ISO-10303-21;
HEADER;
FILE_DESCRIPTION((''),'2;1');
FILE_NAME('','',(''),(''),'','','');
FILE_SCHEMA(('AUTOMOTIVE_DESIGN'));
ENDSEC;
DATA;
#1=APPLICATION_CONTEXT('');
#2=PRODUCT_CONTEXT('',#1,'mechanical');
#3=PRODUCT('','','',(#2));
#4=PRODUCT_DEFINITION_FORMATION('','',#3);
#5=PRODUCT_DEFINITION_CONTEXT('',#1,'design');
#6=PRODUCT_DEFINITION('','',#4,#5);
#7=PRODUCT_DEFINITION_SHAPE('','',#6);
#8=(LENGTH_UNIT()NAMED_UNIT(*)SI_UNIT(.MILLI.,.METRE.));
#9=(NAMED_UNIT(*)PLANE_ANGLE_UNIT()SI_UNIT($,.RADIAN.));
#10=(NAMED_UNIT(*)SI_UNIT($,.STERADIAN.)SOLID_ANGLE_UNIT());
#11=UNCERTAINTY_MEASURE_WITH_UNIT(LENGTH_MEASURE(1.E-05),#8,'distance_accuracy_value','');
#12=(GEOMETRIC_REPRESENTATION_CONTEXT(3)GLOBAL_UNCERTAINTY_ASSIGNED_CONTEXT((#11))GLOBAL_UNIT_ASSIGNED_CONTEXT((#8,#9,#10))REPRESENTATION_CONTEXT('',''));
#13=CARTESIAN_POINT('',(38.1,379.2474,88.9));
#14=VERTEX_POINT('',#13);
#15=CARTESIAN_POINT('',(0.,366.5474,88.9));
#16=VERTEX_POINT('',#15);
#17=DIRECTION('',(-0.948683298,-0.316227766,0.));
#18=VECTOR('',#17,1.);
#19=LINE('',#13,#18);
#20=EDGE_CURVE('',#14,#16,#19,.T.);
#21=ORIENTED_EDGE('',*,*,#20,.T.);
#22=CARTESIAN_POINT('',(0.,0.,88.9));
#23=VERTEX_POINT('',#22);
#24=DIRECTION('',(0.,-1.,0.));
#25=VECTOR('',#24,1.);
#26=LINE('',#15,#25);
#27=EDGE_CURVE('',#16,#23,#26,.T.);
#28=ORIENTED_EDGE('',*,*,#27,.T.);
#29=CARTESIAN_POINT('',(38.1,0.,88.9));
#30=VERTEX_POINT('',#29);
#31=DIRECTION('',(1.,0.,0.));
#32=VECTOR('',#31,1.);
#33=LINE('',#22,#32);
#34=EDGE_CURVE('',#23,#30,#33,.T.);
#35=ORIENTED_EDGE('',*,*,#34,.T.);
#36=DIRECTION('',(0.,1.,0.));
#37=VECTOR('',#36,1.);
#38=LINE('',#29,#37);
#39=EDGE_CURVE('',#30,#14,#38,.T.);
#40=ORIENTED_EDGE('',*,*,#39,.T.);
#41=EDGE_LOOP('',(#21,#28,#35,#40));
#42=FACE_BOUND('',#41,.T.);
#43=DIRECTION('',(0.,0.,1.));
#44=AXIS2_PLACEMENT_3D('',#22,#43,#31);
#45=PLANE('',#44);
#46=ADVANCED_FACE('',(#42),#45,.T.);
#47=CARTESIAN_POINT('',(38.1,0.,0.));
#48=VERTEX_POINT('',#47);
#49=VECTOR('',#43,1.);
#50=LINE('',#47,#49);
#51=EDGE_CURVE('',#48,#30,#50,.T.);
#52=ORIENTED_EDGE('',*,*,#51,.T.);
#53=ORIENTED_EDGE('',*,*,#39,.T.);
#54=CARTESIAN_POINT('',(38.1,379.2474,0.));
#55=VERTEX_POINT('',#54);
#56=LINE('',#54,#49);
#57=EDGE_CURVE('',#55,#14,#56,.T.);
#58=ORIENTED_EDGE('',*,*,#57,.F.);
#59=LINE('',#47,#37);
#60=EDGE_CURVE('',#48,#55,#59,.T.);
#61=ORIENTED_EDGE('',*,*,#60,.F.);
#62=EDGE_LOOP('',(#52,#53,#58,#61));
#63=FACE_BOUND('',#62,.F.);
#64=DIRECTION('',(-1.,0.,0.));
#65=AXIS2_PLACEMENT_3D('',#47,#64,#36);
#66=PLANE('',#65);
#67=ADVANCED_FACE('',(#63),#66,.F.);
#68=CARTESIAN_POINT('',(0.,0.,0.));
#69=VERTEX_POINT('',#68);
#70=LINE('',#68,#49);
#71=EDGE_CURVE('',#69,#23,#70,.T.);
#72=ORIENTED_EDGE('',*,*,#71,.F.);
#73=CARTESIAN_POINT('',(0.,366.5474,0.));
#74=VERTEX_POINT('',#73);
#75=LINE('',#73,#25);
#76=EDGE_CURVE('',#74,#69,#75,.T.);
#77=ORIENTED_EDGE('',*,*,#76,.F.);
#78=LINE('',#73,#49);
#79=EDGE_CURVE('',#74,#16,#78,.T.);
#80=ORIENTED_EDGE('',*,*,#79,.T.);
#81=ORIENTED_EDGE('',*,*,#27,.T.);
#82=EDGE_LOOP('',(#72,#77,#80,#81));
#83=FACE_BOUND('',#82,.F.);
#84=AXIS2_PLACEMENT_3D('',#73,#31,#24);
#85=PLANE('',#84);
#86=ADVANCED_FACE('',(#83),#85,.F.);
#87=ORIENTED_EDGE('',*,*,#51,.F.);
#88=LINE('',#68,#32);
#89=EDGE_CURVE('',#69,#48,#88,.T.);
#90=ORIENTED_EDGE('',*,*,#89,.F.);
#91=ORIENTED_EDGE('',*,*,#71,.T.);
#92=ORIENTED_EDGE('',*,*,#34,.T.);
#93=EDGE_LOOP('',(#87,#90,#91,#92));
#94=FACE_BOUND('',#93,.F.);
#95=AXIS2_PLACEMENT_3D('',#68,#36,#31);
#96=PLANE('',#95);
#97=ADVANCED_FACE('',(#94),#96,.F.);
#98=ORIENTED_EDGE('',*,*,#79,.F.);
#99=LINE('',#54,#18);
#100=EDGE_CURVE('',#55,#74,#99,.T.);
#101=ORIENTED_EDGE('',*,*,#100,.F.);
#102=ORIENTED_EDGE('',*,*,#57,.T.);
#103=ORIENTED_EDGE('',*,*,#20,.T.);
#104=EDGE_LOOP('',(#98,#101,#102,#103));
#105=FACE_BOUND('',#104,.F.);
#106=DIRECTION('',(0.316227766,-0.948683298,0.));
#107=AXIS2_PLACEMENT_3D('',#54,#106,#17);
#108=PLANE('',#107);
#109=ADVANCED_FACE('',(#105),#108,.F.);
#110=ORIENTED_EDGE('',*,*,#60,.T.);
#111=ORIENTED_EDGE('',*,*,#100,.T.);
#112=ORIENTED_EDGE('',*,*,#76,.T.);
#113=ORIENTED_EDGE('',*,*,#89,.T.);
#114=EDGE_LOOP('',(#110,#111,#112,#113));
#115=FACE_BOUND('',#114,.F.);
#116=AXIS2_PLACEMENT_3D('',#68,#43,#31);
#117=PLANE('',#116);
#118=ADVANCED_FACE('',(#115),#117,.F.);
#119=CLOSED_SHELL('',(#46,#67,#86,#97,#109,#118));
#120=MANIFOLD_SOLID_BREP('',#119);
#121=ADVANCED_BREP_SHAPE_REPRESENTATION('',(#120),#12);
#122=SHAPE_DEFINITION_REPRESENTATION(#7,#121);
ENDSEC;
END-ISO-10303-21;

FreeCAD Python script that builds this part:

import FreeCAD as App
import Part
import Sketcher
Q = App.Units.Quantity


def add_polygon(sketch, points):
    """Adds a closed chain of lines whose ends are joined by coincident constraints."""
    first, n = sketch.GeometryCount, len(points)
    for a, b in zip(points, points[1:] + points[:1]):
        sketch.addGeometry(Part.LineSegment(App.Vector(*a, 0), App.Vector(*b, 0)), False)
    for i in range(n):
        sketch.addConstraint(Sketcher.Constraint("Coincident", first + i, 2, first + (i + 1) % n, 1))

doc = App.newDocument("Part")
params = doc.addObject("Spreadsheet::Sheet", "Params")
for row, (alias, value) in enumerate([
    ("sketch1_width", "1.5 in"),
    ("sketch1_height", "14.431 in"),
    ("sketch1_height2", "14.931 in"),
    ("pad1_length", "3.5 in"),
], start=1):
    params.set(f"A{row}", alias)
    params.set(f"B{row}", "=" + value)
    params.setAlias(f"B{row}", alias)

body = doc.addObject("PartDesign::Body", "Body")

# Sketch on XY plane
sketch1 = doc.addObject("Sketcher::SketchObject", "Sketch")
body.addObject(sketch1)
sketch1.AttachmentSupport = (doc.XY_Plane, [""])
sketch1.MapMode = "FlatFace"
add_polygon(sketch1, [(0, 367), (0, 0), (38, 0), (38, 379)])  # lines 0-3
sketch1.addConstraint([
    Sketcher.Constraint("Vertical", 0),
    Sketcher.Constraint("Horizontal", 1),
    Sketcher.Constraint("Vertical", 2),
    Sketcher.Constraint("Coincident", 0, 2, -1, 1),
    Sketcher.Constraint("DistanceX", 1, 1, 1, 2, Q("1.5 in")),
    Sketcher.Constraint("DistanceY", 0, 2, 0, 1, Q("14.431 in")),
    Sketcher.Constraint("DistanceY", 2, 1, 2, 2, Q("14.931 in")),
])
sketch1.setExpression("Constraints[8]", "Params.sketch1_width")
sketch1.setExpression("Constraints[9]", "Params.sketch1_height")
sketch1.setExpression("Constraints[10]", "Params.sketch1_height2")
pad1 = doc.addObject("PartDesign::Pad", "Pad")
body.addObject(pad1)
pad1.Profile = sketch1
pad1.setExpression("Length", "Params.pad1_length")

doc.recompute()
